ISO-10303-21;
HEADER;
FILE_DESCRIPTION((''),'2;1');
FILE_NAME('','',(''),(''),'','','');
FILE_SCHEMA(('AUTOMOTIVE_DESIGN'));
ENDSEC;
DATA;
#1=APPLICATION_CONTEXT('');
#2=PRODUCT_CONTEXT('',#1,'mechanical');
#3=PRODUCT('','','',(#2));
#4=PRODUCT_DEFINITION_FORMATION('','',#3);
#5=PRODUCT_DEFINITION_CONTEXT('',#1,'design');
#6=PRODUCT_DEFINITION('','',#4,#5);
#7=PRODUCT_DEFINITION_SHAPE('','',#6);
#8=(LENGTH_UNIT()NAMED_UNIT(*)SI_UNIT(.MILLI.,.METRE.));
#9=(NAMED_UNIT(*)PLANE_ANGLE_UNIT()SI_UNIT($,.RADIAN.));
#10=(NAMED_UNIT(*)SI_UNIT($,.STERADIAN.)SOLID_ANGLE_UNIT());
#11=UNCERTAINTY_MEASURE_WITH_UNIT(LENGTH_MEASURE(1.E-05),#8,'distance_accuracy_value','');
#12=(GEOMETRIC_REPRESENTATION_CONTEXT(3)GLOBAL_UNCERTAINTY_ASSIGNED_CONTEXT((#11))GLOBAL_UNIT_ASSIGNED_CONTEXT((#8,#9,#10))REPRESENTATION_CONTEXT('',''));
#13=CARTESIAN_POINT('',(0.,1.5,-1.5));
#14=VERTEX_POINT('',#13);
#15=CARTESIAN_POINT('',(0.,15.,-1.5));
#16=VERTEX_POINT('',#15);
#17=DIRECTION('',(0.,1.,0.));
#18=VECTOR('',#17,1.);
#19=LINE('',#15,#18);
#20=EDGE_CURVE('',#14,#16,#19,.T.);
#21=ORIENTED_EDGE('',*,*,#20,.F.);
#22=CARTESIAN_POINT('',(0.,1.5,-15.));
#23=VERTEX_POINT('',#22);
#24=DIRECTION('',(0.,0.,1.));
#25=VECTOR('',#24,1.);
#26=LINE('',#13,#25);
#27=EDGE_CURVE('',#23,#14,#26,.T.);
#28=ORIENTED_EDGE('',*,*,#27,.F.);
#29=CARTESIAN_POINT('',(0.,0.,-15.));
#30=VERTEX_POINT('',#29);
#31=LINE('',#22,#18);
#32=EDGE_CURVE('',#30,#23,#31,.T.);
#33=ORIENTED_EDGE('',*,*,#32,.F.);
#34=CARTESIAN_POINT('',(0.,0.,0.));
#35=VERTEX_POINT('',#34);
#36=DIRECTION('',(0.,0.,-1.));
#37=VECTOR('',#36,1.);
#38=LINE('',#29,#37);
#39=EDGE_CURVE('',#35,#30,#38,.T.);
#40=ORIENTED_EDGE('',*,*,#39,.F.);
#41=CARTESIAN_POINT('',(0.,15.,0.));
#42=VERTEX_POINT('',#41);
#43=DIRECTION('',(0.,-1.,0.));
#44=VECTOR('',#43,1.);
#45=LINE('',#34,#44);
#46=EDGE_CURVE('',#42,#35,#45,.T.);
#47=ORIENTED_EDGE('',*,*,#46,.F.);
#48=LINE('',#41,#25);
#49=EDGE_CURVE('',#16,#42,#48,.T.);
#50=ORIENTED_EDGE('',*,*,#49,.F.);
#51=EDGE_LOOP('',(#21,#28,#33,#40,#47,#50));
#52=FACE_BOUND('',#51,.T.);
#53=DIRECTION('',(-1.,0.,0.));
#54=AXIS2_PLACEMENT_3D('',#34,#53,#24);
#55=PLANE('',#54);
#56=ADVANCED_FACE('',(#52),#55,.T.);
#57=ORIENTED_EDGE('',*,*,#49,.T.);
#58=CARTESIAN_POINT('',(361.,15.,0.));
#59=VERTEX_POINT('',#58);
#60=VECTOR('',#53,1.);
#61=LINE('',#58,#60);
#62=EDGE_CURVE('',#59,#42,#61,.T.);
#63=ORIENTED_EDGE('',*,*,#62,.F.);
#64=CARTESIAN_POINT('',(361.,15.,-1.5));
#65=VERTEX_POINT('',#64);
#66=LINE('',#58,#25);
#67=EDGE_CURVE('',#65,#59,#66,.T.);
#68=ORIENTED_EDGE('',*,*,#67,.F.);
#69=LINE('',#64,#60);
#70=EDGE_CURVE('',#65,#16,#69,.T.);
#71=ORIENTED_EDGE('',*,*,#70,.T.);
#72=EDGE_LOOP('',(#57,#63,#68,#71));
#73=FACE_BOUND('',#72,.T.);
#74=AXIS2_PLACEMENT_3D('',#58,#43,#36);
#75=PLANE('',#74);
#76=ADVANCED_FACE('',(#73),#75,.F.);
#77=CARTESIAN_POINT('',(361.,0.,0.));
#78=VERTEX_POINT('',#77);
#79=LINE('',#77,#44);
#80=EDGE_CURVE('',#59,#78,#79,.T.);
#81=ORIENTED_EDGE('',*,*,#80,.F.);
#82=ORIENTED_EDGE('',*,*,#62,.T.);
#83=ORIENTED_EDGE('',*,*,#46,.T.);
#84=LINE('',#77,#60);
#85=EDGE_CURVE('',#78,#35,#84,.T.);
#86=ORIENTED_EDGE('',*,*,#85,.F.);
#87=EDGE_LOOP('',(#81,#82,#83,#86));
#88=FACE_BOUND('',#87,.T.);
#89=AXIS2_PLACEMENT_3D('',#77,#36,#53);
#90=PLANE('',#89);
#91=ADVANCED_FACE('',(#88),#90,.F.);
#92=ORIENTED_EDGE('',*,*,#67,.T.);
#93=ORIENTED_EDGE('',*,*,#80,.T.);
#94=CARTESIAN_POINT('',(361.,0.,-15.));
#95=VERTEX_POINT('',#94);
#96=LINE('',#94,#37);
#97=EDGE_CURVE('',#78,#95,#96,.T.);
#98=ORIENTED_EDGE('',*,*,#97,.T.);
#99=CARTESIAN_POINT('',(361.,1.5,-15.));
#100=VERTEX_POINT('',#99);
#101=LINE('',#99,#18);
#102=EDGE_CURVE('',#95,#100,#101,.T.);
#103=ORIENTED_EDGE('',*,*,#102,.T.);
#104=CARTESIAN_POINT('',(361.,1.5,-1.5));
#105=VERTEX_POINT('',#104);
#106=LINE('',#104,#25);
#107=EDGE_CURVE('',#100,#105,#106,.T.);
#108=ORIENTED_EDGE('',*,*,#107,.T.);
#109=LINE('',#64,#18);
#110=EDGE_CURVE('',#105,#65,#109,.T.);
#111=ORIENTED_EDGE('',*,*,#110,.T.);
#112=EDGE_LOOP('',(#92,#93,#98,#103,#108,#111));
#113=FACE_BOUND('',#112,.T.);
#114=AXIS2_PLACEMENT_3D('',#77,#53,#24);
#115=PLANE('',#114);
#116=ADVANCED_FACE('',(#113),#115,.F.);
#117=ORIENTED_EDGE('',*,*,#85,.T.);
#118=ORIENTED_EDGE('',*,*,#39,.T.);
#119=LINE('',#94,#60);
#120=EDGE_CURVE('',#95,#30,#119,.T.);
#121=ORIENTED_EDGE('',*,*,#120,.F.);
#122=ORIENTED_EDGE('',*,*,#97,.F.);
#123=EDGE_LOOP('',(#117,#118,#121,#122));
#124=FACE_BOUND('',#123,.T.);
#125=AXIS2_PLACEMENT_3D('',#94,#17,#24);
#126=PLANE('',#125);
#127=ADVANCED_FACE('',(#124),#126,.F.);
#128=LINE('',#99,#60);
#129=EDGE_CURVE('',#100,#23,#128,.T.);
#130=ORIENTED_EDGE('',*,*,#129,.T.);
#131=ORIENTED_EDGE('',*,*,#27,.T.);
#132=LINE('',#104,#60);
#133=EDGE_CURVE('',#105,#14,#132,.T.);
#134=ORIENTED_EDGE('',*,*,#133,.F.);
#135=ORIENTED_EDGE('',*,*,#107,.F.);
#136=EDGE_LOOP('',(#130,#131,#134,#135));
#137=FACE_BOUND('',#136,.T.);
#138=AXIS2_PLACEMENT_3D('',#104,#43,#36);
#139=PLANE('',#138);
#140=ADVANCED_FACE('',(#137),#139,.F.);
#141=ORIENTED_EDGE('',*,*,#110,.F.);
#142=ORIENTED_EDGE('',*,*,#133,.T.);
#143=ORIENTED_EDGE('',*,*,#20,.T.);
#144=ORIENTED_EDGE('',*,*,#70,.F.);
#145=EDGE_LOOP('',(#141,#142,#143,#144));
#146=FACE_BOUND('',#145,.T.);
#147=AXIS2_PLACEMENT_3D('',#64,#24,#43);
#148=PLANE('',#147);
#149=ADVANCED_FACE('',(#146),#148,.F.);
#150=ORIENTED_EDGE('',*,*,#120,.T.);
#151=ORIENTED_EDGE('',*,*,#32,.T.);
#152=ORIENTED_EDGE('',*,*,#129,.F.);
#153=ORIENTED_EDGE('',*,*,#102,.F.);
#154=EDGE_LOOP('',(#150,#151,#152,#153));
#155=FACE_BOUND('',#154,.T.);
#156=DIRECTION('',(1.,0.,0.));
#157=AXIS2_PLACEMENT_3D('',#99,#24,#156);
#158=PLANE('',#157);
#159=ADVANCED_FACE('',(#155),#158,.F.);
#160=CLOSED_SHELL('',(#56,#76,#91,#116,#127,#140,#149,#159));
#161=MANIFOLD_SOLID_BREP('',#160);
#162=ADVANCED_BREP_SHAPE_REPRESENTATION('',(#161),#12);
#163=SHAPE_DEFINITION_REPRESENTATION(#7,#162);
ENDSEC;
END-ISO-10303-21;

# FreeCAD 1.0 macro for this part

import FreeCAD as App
import Part
import Sketcher
from FreeCAD import Vector

doc = App.newDocument("Part")
body = doc.addObject("PartDesign::Body", "Body")

sketch1 = doc.addObject("Sketcher::SketchObject", "Sketch")
body.addObject(sketch1)
sketch1.AttachmentSupport = (doc.YZ_Plane, [""])
sketch1.MapMode = "FlatFace"
sketch1.addGeometry(Part.LineSegment(Vector(15, 0, 0), Vector(0, 0, 0)), False)
sketch1.addGeometry(Part.LineSegment(Vector(0, 0, 0), Vector(0, -15, 0)), False)
sketch1.addGeometry(Part.LineSegment(Vector(0, -15, 0), Vector(1.5, -15, 0)), False)
sketch1.addGeometry(Part.LineSegment(Vector(1.5, -15, 0), Vector(1.5, -1.5, 0)), False)
sketch1.addGeometry(Part.LineSegment(Vector(1.5, -1.5, 0), Vector(15, -1.5, 0)), False)
sketch1.addGeometry(Part.LineSegment(Vector(15, -1.5, 0), Vector(15, 0, 0)), False)
sketch1.addConstraint(Sketcher.Constraint("Coincident", 0, 2, 1, 1))
sketch1.addConstraint(Sketcher.Constraint("Coincident", 1, 2, 2, 1))
sketch1.addConstraint(Sketcher.Constraint("Coincident", 2, 2, 3, 1))
sketch1.addConstraint(Sketcher.Constraint("Coincident", 3, 2, 4, 1))
sketch1.addConstraint(Sketcher.Constraint("Coincident", 4, 2, 5, 1))
sketch1.addConstraint(Sketcher.Constraint("Coincident", 5, 2, 0, 1))
sketch1.addConstraint(Sketcher.Constraint("Horizontal", 0))
sketch1.addConstraint(Sketcher.Constraint("Vertical", 1))
sketch1.addConstraint(Sketcher.Constraint("Horizontal", 2))
sketch1.addConstraint(Sketcher.Constraint("Vertical", 3))
sketch1.addConstraint(Sketcher.Constraint("Horizontal", 4))
sketch1.addConstraint(Sketcher.Constraint("Vertical", 5))
sketch1.addConstraint(Sketcher.Constraint("Coincident", 0, 2, -1, 1))
sketch1.addConstraint(Sketcher.Constraint("Equal", 0, 1))
sketch1.addConstraint(Sketcher.Constraint("Equal", 4, 3))
sketch1.addConstraint(Sketcher.Constraint("DistanceX", 0, 2, 0, 1, 15.0))
sketch1.addConstraint(Sketcher.Constraint("DistanceX", 2, 1, 2, 2, 1.5))
pad1 = doc.addObject("PartDesign::Pad", "Pad")
body.addObject(pad1)
pad1.Profile = sketch1
pad1.Length = 361

doc.recompute()
